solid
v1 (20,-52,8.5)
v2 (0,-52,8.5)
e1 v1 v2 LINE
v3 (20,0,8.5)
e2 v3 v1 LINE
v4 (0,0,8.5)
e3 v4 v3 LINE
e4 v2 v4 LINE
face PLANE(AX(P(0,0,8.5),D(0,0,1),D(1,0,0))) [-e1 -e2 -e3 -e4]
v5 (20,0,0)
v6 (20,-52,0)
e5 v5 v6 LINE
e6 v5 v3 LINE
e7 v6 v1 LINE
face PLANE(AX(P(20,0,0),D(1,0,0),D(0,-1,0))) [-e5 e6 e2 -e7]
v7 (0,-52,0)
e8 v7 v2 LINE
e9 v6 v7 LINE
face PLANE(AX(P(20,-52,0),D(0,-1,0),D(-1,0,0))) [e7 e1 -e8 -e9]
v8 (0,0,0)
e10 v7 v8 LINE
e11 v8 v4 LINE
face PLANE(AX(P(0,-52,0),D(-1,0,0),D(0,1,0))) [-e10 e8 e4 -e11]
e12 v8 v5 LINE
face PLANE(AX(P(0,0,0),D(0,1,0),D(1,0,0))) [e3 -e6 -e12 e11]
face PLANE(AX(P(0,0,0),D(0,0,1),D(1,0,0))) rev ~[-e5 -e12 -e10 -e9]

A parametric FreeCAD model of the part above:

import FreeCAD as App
import Part
import Sketcher

V = App.Vector


def add_polygon(sketch, points):
    """Adds a closed chain of lines whose ends are joined by coincident constraints."""
    first, n = sketch.GeometryCount, len(points)
    for a, b in zip(points, points[1:] + points[:1]):
        sketch.addGeometry(Part.LineSegment(App.Vector(*a, 0), App.Vector(*b, 0)), False)
    for i in range(n):
        sketch.addConstraint(Sketcher.Constraint("Coincident", first + i, 2, first + (i + 1) % n, 1))

doc = App.newDocument("Part")
body = doc.addObject("PartDesign::Body", "Body")

sketch1 = body.newObject("Sketcher::SketchObject", "Sketch")
sketch1.AttachmentSupport = (doc.getObject("XY_Plane"), [""])
sketch1.MapMode = "FlatFace"
add_polygon(sketch1, [(20, 0), (0, 0), (0, -52), (20, -52)])
sketch1.addConstraint([
    Sketcher.Constraint("Horizontal", 0),
    Sketcher.Constraint("Vertical", 1),
    Sketcher.Constraint("Horizontal", 2),
    Sketcher.Constraint("Vertical", 3),
    Sketcher.Constraint("Coincident", 0, 2, -1, 1),
    Sketcher.Constraint("DistanceX", 0, 2, 0, 1, 20.0),
    Sketcher.Constraint("DistanceY", 1, 2, 1, 1, 52.0),
])
pad1 = body.newObject("PartDesign::Pad", "Pad")
pad1.Profile = sketch1
pad1.Length = 8.5

doc.recompute()
